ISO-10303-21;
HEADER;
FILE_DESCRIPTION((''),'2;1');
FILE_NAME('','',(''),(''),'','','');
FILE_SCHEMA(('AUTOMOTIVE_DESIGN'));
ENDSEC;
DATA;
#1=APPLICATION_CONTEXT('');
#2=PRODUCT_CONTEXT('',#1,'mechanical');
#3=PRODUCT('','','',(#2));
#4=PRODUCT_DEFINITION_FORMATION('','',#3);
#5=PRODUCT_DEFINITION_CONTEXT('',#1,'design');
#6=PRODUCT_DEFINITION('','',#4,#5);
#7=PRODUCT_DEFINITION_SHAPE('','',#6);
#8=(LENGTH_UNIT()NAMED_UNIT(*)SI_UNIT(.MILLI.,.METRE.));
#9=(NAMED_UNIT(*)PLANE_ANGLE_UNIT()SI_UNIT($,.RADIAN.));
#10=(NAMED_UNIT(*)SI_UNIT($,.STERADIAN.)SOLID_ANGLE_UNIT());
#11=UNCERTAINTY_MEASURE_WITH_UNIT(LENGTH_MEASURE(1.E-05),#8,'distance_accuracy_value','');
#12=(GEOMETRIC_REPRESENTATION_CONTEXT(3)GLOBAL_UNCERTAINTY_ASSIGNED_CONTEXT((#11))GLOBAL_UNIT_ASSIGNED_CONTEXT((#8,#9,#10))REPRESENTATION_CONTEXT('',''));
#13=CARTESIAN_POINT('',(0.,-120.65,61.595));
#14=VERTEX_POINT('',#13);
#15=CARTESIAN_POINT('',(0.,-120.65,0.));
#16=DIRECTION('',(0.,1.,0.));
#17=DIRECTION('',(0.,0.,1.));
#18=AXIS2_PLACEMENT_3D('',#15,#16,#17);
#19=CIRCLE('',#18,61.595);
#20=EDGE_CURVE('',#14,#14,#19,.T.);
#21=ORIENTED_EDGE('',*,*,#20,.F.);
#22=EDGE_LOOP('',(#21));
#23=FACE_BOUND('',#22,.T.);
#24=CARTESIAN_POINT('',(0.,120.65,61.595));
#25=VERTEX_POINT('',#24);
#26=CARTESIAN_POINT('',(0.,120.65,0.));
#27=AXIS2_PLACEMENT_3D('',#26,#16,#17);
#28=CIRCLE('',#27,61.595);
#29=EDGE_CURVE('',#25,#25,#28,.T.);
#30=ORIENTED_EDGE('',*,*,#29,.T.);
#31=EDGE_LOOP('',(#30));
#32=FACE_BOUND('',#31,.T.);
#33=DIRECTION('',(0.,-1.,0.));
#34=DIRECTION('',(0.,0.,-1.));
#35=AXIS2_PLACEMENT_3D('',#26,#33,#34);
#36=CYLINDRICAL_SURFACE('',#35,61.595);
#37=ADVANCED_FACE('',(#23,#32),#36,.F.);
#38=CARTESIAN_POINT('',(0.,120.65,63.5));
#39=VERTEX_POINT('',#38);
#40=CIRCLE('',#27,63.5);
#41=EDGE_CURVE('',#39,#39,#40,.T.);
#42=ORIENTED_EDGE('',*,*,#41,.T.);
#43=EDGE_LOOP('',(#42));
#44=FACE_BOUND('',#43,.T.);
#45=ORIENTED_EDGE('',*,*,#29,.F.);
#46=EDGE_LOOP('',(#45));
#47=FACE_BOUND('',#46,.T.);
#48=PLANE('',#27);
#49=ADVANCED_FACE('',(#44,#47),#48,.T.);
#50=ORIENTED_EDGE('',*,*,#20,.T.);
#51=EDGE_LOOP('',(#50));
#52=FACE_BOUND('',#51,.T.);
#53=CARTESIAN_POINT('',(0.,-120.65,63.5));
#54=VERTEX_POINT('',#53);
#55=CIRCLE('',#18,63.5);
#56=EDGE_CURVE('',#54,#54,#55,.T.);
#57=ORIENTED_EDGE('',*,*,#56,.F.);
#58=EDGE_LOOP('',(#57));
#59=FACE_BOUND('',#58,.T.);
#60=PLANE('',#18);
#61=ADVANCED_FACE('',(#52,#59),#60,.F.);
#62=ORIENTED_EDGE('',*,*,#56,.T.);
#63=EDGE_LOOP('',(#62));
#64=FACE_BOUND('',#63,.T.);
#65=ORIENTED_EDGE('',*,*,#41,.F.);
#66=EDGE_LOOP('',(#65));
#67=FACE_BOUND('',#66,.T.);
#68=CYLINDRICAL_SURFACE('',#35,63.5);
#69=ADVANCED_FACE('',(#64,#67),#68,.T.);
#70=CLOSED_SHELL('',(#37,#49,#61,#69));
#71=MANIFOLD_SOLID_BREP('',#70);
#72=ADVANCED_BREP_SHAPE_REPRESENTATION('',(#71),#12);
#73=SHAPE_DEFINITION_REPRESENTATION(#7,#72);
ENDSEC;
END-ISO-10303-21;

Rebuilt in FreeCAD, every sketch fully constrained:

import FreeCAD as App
import Part
import Sketcher
from FreeCAD import Vector
Q = App.Units.Quantity

doc = App.newDocument("Part")
params = doc.addObject("Spreadsheet::Sheet", "Params")
for row, (alias, value) in enumerate([
    ("sketch1_diameter", "5 in"),
    ("sketch1_diameter2", "4.85 in"),
    ("pad1_length", "9.5 in"),
], start=1):
    params.set(f"A{row}", alias)
    params.set(f"B{row}", "=" + value)
    params.setAlias(f"B{row}", alias)

body = doc.addObject("PartDesign::Body", "Body")

# Sketch on XZ plane
sketch1 = doc.addObject("Sketcher::SketchObject", "Sketch")
body.addObject(sketch1)
sketch1.AttachmentSupport = (doc.XZ_Plane, [""])
sketch1.MapMode = "FlatFace"
sketch1.addGeometry([
    Part.Circle(Vector(0, 0, 0), Vector(0, 0, 1), 64),
    Part.Circle(Vector(0, 0, 0), Vector(0, 0, 1), 62),
], False)
sketch1.addConstraint([
    Sketcher.Constraint("Coincident", 0, 3, -1, 1),
    Sketcher.Constraint("Coincident", 1, 3, -1, 1),
    Sketcher.Constraint("Diameter", 0, Q("5 in")),
    Sketcher.Constraint("Diameter", 1, Q("4.85 in")),
])
sketch1.setExpression("Constraints[2]", "Params.sketch1_diameter")
sketch1.setExpression("Constraints[3]", "Params.sketch1_diameter2")
pad1 = doc.addObject("PartDesign::Pad", "Pad")
body.addObject(pad1)
pad1.Profile = sketch1
pad1.setExpression("Length", "Params.pad1_length")
pad1.Midplane = True

doc.recompute()
